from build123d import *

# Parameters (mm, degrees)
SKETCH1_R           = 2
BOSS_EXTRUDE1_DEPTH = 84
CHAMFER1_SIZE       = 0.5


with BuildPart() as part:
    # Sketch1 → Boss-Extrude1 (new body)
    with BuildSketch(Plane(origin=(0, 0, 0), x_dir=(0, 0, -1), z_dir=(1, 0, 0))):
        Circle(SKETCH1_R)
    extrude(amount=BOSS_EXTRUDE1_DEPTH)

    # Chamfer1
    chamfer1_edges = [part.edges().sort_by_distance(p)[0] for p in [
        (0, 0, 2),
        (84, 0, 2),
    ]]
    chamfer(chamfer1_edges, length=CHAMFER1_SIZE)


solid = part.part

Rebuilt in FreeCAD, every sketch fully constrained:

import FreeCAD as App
import Part
import Sketcher
Q = App.Units.Quantity


def edges_at(feature, points):
    """Names of the edges that pass closest to the given points."""
    edges = feature.Shape.Edges
    near = lambda p: min(range(len(edges)), key=lambda i: edges[i].distToShape(Part.Vertex(*p))[0])
    return sorted({f"Edge{near(p) + 1}" for p in points})

doc = App.newDocument("Part")
body = doc.addObject("PartDesign::Body", "Body")

sketch1 = doc.addObject("Sketcher::SketchObject", "Sketch")
body.addObject(sketch1)
sketch1.AttachmentSupport = (doc.YZ_Plane, [""])
sketch1.MapMode = "FlatFace"
sketch1.addGeometry(Part.Circle(App.Vector(0, 0, 0), App.Vector(0, 0, 1), 2), False)
sketch1.addConstraint(Sketcher.Constraint("Coincident", 0, 3, -1, 1))
sketch1.addConstraint(Sketcher.Constraint("Diameter", 0, Q("4 mm")))
pad1 = doc.addObject("PartDesign::Pad", "Pad")
body.addObject(pad1)
pad1.Profile = sketch1
pad1.Length = 84
doc.recompute()

chamfer = doc.addObject("PartDesign::Chamfer", "Chamfer")
body.addObject(chamfer)
chamfer.Base = (pad1, edges_at(pad1, [(0, 0, 2), (84, 0, 2)]))
chamfer.Size = 0.5

doc.recompute()
